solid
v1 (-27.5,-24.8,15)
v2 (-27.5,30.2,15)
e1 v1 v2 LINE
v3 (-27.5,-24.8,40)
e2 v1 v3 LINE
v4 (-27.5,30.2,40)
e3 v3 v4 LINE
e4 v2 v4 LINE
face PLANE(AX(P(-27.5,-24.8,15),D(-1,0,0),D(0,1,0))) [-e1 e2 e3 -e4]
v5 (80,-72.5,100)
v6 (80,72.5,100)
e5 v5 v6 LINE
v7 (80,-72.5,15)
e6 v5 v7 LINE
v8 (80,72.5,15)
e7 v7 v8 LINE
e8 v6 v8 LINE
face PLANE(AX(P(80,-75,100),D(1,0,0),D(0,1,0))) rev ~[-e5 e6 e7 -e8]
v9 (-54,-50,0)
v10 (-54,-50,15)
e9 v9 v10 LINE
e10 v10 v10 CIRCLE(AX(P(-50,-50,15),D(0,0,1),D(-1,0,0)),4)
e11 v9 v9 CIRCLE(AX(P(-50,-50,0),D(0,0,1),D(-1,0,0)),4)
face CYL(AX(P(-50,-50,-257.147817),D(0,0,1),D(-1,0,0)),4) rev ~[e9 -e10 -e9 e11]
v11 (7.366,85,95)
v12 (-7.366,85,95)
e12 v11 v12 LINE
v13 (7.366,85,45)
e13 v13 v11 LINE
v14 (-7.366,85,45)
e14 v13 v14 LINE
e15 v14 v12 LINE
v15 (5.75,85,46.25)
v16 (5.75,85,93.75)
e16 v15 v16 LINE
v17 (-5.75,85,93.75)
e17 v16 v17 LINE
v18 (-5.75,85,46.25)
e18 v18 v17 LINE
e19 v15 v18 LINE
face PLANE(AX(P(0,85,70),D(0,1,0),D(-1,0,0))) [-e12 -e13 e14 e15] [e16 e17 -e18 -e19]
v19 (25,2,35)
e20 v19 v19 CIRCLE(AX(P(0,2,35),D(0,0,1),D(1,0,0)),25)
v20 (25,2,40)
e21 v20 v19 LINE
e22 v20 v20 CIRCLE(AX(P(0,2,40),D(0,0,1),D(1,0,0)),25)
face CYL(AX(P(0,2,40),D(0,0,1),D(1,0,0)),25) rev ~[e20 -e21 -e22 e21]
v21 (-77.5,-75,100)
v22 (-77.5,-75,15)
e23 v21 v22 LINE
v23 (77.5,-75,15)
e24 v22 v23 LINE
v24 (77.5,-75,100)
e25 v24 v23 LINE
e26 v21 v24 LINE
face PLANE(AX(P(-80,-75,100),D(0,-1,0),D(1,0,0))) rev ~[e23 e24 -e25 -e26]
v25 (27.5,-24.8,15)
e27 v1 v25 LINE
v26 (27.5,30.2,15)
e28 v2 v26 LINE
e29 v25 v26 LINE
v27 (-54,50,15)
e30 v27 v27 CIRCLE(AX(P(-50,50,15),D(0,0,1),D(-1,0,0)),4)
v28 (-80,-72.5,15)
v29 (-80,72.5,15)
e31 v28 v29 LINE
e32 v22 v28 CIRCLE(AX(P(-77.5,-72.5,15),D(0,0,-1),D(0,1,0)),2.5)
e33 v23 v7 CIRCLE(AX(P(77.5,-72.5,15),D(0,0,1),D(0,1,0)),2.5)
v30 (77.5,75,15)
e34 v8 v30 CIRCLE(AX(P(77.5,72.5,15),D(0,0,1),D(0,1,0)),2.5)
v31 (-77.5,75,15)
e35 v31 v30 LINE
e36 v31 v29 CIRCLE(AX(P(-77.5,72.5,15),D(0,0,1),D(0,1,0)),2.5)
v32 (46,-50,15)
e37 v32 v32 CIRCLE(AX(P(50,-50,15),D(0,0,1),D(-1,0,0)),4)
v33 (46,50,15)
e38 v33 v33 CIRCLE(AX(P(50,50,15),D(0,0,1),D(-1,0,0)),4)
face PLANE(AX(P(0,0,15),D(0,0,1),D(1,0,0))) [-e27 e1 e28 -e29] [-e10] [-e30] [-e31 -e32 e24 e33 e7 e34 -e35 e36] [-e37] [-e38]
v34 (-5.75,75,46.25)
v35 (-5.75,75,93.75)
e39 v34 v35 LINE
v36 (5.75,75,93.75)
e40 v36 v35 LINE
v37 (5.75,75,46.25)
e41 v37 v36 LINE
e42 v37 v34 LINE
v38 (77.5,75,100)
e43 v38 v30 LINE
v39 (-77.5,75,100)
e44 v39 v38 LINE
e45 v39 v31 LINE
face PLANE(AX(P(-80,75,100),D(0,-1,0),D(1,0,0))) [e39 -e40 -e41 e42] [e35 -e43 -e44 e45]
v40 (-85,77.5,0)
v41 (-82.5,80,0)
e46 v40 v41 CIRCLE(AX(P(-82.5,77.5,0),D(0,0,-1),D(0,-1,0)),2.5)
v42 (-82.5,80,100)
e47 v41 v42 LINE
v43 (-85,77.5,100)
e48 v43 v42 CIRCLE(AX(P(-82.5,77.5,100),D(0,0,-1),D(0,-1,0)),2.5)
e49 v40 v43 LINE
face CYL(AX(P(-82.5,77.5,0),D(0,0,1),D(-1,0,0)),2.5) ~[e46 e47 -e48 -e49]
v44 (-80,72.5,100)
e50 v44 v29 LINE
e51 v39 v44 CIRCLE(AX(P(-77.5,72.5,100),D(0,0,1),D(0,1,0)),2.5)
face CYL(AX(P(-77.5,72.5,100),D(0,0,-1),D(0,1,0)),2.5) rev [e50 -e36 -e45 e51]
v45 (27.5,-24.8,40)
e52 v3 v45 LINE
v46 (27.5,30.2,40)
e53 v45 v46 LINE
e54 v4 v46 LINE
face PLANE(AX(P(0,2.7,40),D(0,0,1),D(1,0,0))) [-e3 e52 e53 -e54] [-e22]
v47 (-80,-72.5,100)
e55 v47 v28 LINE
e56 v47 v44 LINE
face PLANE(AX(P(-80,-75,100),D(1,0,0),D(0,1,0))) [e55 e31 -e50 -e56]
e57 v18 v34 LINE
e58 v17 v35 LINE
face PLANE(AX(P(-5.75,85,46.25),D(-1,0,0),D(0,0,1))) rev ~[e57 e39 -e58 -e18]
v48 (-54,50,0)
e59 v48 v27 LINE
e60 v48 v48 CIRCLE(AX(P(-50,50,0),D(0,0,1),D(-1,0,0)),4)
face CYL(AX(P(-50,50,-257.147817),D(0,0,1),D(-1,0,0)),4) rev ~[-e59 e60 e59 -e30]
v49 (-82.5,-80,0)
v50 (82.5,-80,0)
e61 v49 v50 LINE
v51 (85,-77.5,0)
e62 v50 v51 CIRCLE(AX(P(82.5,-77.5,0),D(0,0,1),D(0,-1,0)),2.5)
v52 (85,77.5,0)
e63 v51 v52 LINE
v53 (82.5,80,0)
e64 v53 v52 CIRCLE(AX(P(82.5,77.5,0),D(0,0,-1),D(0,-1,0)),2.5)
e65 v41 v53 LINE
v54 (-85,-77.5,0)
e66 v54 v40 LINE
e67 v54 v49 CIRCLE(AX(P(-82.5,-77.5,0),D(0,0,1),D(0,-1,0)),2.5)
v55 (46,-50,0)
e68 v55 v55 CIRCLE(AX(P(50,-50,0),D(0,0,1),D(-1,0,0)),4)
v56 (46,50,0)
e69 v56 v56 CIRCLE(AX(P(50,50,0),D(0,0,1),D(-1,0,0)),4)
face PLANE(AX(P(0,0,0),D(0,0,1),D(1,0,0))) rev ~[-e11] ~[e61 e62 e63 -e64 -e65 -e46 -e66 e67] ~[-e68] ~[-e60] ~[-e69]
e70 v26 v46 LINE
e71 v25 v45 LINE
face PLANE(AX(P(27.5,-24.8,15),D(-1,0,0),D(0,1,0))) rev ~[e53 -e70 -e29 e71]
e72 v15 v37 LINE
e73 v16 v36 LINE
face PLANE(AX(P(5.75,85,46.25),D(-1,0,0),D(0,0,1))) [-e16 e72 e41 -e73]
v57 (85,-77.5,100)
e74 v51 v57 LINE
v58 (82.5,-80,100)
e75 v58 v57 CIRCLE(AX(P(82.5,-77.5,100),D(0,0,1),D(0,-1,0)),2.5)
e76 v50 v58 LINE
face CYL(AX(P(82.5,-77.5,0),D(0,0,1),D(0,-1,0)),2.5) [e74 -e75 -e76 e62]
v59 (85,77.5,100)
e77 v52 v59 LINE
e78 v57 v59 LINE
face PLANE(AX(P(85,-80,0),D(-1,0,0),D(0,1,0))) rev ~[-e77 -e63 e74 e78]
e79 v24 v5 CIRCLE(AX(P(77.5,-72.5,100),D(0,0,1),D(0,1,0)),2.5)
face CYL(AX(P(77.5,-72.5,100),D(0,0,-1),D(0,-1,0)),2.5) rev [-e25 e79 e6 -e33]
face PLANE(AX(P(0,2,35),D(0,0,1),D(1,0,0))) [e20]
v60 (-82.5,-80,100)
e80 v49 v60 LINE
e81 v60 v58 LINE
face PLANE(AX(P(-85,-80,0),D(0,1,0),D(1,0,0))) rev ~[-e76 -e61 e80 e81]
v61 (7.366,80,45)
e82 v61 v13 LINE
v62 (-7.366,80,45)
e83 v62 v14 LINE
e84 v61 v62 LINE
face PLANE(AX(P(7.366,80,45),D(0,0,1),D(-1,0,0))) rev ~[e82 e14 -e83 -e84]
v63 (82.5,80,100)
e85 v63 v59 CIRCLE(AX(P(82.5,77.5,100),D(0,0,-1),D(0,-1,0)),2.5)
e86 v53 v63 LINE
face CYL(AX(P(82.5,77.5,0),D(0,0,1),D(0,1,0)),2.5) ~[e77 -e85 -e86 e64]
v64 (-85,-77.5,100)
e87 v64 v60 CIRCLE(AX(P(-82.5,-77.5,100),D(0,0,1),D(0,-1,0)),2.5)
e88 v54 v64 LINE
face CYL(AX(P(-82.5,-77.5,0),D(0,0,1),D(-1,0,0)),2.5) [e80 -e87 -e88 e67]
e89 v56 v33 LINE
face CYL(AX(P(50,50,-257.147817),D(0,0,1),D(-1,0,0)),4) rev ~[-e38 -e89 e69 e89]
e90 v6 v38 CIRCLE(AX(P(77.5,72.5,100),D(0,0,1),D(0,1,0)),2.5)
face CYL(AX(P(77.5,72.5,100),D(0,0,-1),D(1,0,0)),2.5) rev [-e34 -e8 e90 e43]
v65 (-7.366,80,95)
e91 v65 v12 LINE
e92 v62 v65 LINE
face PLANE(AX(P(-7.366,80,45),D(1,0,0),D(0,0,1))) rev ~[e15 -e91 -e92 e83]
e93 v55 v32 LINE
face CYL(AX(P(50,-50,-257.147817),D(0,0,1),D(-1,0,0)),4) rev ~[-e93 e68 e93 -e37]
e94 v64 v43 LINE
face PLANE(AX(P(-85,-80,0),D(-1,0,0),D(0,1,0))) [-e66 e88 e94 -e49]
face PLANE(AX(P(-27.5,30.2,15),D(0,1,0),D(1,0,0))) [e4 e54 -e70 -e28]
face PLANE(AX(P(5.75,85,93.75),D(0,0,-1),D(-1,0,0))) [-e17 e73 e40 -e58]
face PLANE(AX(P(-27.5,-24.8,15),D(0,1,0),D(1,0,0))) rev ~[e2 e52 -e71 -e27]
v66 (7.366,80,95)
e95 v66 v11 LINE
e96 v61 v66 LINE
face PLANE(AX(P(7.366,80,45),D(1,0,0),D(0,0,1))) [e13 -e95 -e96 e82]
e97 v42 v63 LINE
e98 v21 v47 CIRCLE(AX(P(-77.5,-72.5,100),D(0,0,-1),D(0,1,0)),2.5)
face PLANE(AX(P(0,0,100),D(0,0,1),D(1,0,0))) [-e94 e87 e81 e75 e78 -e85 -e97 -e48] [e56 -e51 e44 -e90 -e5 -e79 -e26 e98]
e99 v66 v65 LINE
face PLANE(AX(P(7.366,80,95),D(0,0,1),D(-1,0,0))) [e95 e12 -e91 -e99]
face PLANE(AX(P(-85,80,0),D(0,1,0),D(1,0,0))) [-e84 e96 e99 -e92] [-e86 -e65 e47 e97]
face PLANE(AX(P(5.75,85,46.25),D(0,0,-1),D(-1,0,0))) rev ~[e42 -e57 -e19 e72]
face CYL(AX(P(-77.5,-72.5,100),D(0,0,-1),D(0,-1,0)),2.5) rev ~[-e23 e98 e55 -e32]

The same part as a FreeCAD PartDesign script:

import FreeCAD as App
import Part
import Sketcher
from FreeCAD import Vector


def edges_at(feature, points):
    """Names of the edges that pass closest to the given points."""
    edges = feature.Shape.Edges
    near = lambda p: min(range(len(edges)), key=lambda i: edges[i].distToShape(Part.Vertex(*p))[0])
    return sorted({f"Edge{near(p) + 1}" for p in points})


def add_polygon(sketch, points):
    """Adds a closed chain of lines whose ends are joined by coincident constraints."""
    first, n = sketch.GeometryCount, len(points)
    for a, b in zip(points, points[1:] + points[:1]):
        sketch.addGeometry(Part.LineSegment(App.Vector(*a, 0), App.Vector(*b, 0)), False)
    for i in range(n):
        sketch.addConstraint(Sketcher.Constraint("Coincident", first + i, 2, first + (i + 1) % n, 1))

doc = App.newDocument("Part")
body = doc.addObject("PartDesign::Body", "Body")

# Sketch on XY plane
sketch1 = doc.addObject("Sketcher::SketchObject", "Sketch")
body.addObject(sketch1)
sketch1.AttachmentSupport = (doc.XY_Plane, [""])
sketch1.MapMode = "FlatFace"
add_polygon(sketch1, [(-85, 80), (-85, -80), (85, -80), (85, 80)])  # lines 0-3
sketch1.addConstraint(Sketcher.Constraint("Vertical", 0))
sketch1.addConstraint(Sketcher.Constraint("Horizontal", 1))
sketch1.addConstraint(Sketcher.Constraint("Vertical", 2))
sketch1.addConstraint(Sketcher.Constraint("Horizontal", 3))
sketch1.addConstraint(Sketcher.Constraint("Symmetric", 0, 2, 2, 2, -1, 1))
sketch1.addConstraint(Sketcher.Constraint("DistanceX", 1, 1, 1, 2, 170.0))
sketch1.addConstraint(Sketcher.Constraint("DistanceY", 0, 2, 0, 1, 160.0))
pad1 = doc.addObject("PartDesign::Pad", "Pad")
body.addObject(pad1)
pad1.Profile = sketch1
pad1.Length = 100

# Sketch on XY plane
sketch2 = doc.addObject("Sketcher::SketchObject", "Sketch001")
body.addObject(sketch2)
sketch2.AttachmentSupport = (doc.XY_Plane, [""])
sketch2.MapMode = "FlatFace"
sketch2.AttachmentOffset = App.Placement(Vector(0, 0, 100), App.Rotation())
add_polygon(sketch2, [(-80, 75), (-80, -75), (80, -75), (80, 75)])  # lines 0-3
sketch2.addConstraint(Sketcher.Constraint("Vertical", 0))
sketch2.addConstraint(Sketcher.Constraint("Horizontal", 1))
sketch2.addConstraint(Sketcher.Constraint("Vertical", 2))
sketch2.addConstraint(Sketcher.Constraint("Horizontal", 3))
sketch2.addConstraint(Sketcher.Constraint("Symmetric", 0, 2, 2, 2, -1, 1))
sketch2.addConstraint(Sketcher.Constraint("DistanceX", 1, 1, 1, 2, 160.0))
sketch2.addConstraint(Sketcher.Constraint("DistanceY", 0, 2, 0, 1, 150.0))
pocket1 = doc.addObject("PartDesign::Pocket", "Pocket")
body.addObject(pocket1)
pocket1.Profile = sketch2
pocket1.Length = 85

# Sketch on XZ plane
sketch3 = doc.addObject("Sketcher::SketchObject", "Sketch002")
body.addObject(sketch3)
sketch3.AttachmentSupport = (doc.XZ_Plane, [""])
sketch3.MapMode = "FlatFace"
sketch3.AttachmentOffset = App.Placement(Vector(0, 0, -80), App.Rotation())
add_polygon(sketch3, [(7, 95), (7, 45), (-7, 45), (-7, 95)])  # lines 0-3
sketch3.addConstraint(Sketcher.Constraint("Vertical", 0))
sketch3.addConstraint(Sketcher.Constraint("Horizontal", 1))
sketch3.addConstraint(Sketcher.Constraint("Vertical", 2))
sketch3.addConstraint(Sketcher.Constraint("Horizontal", 3))
sketch3.addConstraint(Sketcher.Constraint("DistanceY", 0, 2, 0, 1, 50.0))
sketch3.addConstraint(Sketcher.Constraint("DistanceY", -1, 1, 0, 2, 45.0))
sketch3.addConstraint(Sketcher.Constraint("DistanceX", 1, 2, 1, 1, 14.732))
sketch3.addConstraint(Sketcher.Constraint("DistanceX", -1, 1, 0, 2, 7.366))
pad2 = doc.addObject("PartDesign::Pad", "Pad001")
body.addObject(pad2)
pad2.Profile = sketch3
pad2.Length = 5
pad2.Reversed = True

# Sketch on XZ plane
sketch4 = doc.addObject("Sketcher::SketchObject", "Sketch003")
body.addObject(sketch4)
sketch4.AttachmentSupport = (doc.XZ_Plane, [""])
sketch4.MapMode = "FlatFace"
sketch4.AttachmentOffset = App.Placement(Vector(0, 0, -85), App.Rotation())
add_polygon(sketch4, [(6, 94), (6, 46), (-6, 46), (-6, 94)])  # lines 0-3
sketch4.addConstraint(Sketcher.Constraint("Vertical", 0))
sketch4.addConstraint(Sketcher.Constraint("Horizontal", 1))
sketch4.addConstraint(Sketcher.Constraint("Vertical", 2))
sketch4.addConstraint(Sketcher.Constraint("Horizontal", 3))
sketch4.addConstraint(Sketcher.Constraint("DistanceX", 1, 2, 1, 1, 11.5))
sketch4.addConstraint(Sketcher.Constraint("DistanceY", 0, 2, 0, 1, 47.5))
sketch4.addConstraint(Sketcher.Constraint("DistanceX", -1, 1, 0, 2, 5.75))
sketch4.addConstraint(Sketcher.Constraint("DistanceY", -1, 1, 0, 2, 46.25))
pocket2 = doc.addObject("PartDesign::Pocket", "Pocket001")
body.addObject(pocket2)
pocket2.Profile = sketch4
pocket2.Length = 10
pocket2.Reversed = True
doc.recompute()

fillet = doc.addObject("PartDesign::Fillet", "Fillet")
body.addObject(fillet)
fillet.Base = (pocket2, edges_at(pocket2, [
    (85, -80, 50),
    (-85, -80, 50),
    (85, 80, 50),
    (-85, 80, 50),
    (80, 75, 57.5),
    (-80, 75, 57.5),
    (-80, -75, 57.5),
    (80, -75, 57.5),
]))
fillet.Radius = 2.5

# Sketch on XY plane
sketch5 = doc.addObject("Sketcher::SketchObject", "Sketch004")
body.addObject(sketch5)
sketch5.AttachmentSupport = (doc.XY_Plane, [""])
sketch5.MapMode = "FlatFace"
sketch5.AttachmentOffset = App.Placement(Vector(0, 0, 15), App.Rotation())
add_polygon(sketch5, [(-28, 30), (-28, -25), (28, -25), (28, 30)])  # lines 0-3
sketch5.addConstraint(Sketcher.Constraint("Vertical", 0))
sketch5.addConstraint(Sketcher.Constraint("Horizontal", 1))
sketch5.addConstraint(Sketcher.Constraint("Vertical", 2))
sketch5.addConstraint(Sketcher.Constraint("Horizontal", 3))
sketch5.addConstraint(Sketcher.Constraint("Equal", 3, 0))
sketch5.addConstraint(Sketcher.Constraint("DistanceX", 1, 1, 1, 2, 55.0))
sketch5.addConstraint(Sketcher.Constraint("DistanceX", 0, 2, -1, 1, 27.5))
sketch5.addConstraint(Sketcher.Constraint("DistanceY", 0, 2, -1, 1, 24.8))
pad3 = doc.addObject("PartDesign::Pad", "Pad002")
body.addObject(pad3)
pad3.Profile = sketch5
pad3.Length = 25

# Sketch on XY plane
sketch6 = doc.addObject("Sketcher::SketchObject", "Sketch005")
body.addObject(sketch6)
sketch6.AttachmentSupport = (doc.XY_Plane, [""])
sketch6.MapMode = "FlatFace"
sketch6.AttachmentOffset = App.Placement(Vector(0, 0, 40), App.Rotation())
sketch6.addGeometry(Part.Circle(Vector(0, 2, 0), Vector(0, 0, 1), 25), False)
sketch6.addConstraint(Sketcher.Constraint("PointOnObject", 0, 3, -2))
sketch6.addConstraint(Sketcher.Constraint("Diameter", 0, 50.0))
sketch6.addConstraint(Sketcher.Constraint("DistanceY", -1, 1, 0, 3, 2.0))
pocket3 = doc.addObject("PartDesign::Pocket", "Pocket002")
body.addObject(pocket3)
pocket3.Profile = sketch6
pocket3.Length = 5

# Sketch on XY plane
sketch7 = doc.addObject("Sketcher::SketchObject", "Sketch006")
body.addObject(sketch7)
sketch7.AttachmentSupport = (doc.XY_Plane, [""])
sketch7.MapMode = "FlatFace"
sketch7.addGeometry(Part.Circle(Vector(-50, -50, 0), Vector(0, 0, 1), 4), False)
sketch7.addGeometry(Part.Circle(Vector(50, -50, 0), Vector(0, 0, 1), 4), False)
sketch7.addGeometry(Part.Circle(Vector(50, 50, 0), Vector(0, 0, 1), 4), False)
sketch7.addGeometry(Part.Circle(Vector(-50, 50, 0), Vector(0, 0, 1), 4), False)
sketch7.addConstraint(Sketcher.Constraint("Equal", 0, 1))
sketch7.addConstraint(Sketcher.Constraint("Equal", 1, 2))
sketch7.addConstraint(Sketcher.Constraint("Equal", 2, 3))
sketch7.addConstraint(Sketcher.Constraint("Symmetric", 0, 3, 2, 3, -1, 1))
sketch7.addConstraint(Sketcher.Constraint("Symmetric", 1, 3, 3, 3, -1, 1))
sketch7.addConstraint(Sketcher.Constraint("Symmetric", 0, 3, 1, 3, -2))
sketch7.addConstraint(Sketcher.Constraint("Diameter", 0, 8.0))
sketch7.addConstraint(Sketcher.Constraint("DistanceX", 0, 3, -1, 1, 50.0))
sketch7.addConstraint(Sketcher.Constraint("DistanceY", 0, 3, -1, 1, 50.0))
doc.recompute()
hole = doc.addObject("PartDesign::Hole", "Hole")
body.addObject(hole)
hole.Profile = sketch7
hole.ThreadType = "None"
hole.Diameter = 8
hole.DepthType = "ThroughAll"
hole.Reversed = True

doc.recompute()
